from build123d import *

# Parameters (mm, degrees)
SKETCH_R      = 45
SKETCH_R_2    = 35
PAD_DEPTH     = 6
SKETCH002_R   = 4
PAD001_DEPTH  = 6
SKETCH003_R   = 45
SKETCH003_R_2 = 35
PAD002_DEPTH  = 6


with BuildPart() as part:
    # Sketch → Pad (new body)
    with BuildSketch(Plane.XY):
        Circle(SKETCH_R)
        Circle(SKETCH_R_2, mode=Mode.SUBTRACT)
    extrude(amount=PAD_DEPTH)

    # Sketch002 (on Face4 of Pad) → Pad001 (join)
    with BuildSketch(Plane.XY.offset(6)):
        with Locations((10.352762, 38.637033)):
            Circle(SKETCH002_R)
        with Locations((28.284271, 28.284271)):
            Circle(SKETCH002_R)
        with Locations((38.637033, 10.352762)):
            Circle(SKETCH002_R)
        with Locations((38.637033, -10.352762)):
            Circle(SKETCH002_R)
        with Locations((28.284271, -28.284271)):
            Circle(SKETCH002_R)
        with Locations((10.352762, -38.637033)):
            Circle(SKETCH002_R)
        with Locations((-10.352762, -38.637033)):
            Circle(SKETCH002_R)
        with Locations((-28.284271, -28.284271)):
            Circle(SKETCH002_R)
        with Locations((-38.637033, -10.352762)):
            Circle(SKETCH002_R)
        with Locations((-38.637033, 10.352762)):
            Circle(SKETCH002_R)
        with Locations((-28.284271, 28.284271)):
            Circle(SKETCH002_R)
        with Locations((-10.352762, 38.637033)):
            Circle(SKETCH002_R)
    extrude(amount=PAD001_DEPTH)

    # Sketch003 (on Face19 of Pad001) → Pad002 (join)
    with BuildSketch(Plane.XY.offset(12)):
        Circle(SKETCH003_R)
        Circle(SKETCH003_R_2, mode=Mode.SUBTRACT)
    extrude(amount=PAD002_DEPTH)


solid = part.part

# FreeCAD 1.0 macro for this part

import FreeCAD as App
import Part
import Sketcher
Q = App.Units.Quantity

doc = App.newDocument("Part")
params = doc.addObject("Spreadsheet::Sheet", "Params")
for row, (alias, value) in enumerate([
    ("sketch1_diameter", "90 mm"),
    ("sketch1_diameter2", "70 mm"),
    ("pad1_length", "6 mm"),
    ("sketch2_diameter", "8 mm"),
    ("pad2_length", "6 mm"),
    ("sketch3_diameter", "90 mm"),
    ("sketch3_diameter2", "70 mm"),
    ("pad3_length", "6 mm"),
], start=1):
    params.set(f"A{row}", alias)
    params.set(f"B{row}", "=" + value)
    params.setAlias(f"B{row}", alias)

body = doc.addObject("PartDesign::Body", "Body")

# Sketch on XY plane
sketch1 = body.newObject("Sketcher::SketchObject", "Sketch")
sketch1.AttachmentSupport = (doc.getObject("XY_Plane"), [""])
sketch1.MapMode = "FlatFace"
sketch1.addGeometry(Part.Circle(App.Vector(0, 0, 0), App.Vector(0, 0, 1), 45), False)
sketch1.addGeometry(Part.Circle(App.Vector(0, 0, 0), App.Vector(0, 0, 1), 35), False)
sketch1.addConstraint(Sketcher.Constraint("Coincident", 0, 3, -1, 1))
sketch1.addConstraint(Sketcher.Constraint("Coincident", 1, 3, -1, 1))
sketch1.addConstraint(Sketcher.Constraint("Diameter", 0, Q("90 mm")))
sketch1.addConstraint(Sketcher.Constraint("Diameter", 1, Q("70 mm")))
sketch1.setExpression("Constraints[2]", "Params.sketch1_diameter")
sketch1.setExpression("Constraints[3]", "Params.sketch1_diameter2")
pad1 = body.newObject("PartDesign::Pad", "Pad")
pad1.Profile = sketch1
pad1.setExpression("Length", "Params.pad1_length")

# Sketch on XY plane
sketch2 = body.newObject("Sketcher::SketchObject", "Sketch001")
sketch2.AttachmentSupport = (doc.getObject("XY_Plane"), [""])
sketch2.MapMode = "FlatFace"
sketch2.AttachmentOffset = App.Placement(App.Vector(0, 0, 6), App.Rotation())
sketch2.addGeometry(Part.Circle(App.Vector(10.4, 38.6, 0), App.Vector(0, 0, 1), 4), False)
sketch2.addGeometry(Part.Circle(App.Vector(28.3, 28.3, 0), App.Vector(0, 0, 1), 4), False)
sketch2.addGeometry(Part.Circle(App.Vector(38.6, 10.4, 0), App.Vector(0, 0, 1), 4), False)
sketch2.addGeometry(Part.Circle(App.Vector(38.6, -10.4, 0), App.Vector(0, 0, 1), 4), False)
sketch2.addGeometry(Part.Circle(App.Vector(28.3, -28.3, 0), App.Vector(0, 0, 1), 4), False)
sketch2.addGeometry(Part.Circle(App.Vector(10.4, -38.6, 0), App.Vector(0, 0, 1), 4), False)
sketch2.addGeometry(Part.Circle(App.Vector(-10.4, -38.6, 0), App.Vector(0, 0, 1), 4), False)
sketch2.addGeometry(Part.Circle(App.Vector(-28.3, -28.3, 0), App.Vector(0, 0, 1), 4), False)
sketch2.addGeometry(Part.Circle(App.Vector(-38.6, -10.4, 0), App.Vector(0, 0, 1), 4), False)
sketch2.addGeometry(Part.Circle(App.Vector(-38.6, 10.4, 0), App.Vector(0, 0, 1), 4), False)
sketch2.addGeometry(Part.Circle(App.Vector(-28.3, 28.3, 0), App.Vector(0, 0, 1), 4), False)
sketch2.addGeometry(Part.Circle(App.Vector(-10.4, 38.6, 0), App.Vector(0, 0, 1), 4), False)
sketch2.addConstraint(Sketcher.Constraint("Equal", 0, 1))
sketch2.addConstraint(Sketcher.Constraint("Equal", 1, 2))
sketch2.addConstraint(Sketcher.Constraint("Equal", 2, 3))
sketch2.addConstraint(Sketcher.Constraint("Equal", 3, 4))
sketch2.addConstraint(Sketcher.Constraint("Equal", 4, 5))
sketch2.addConstraint(Sketcher.Constraint("Equal", 5, 6))
sketch2.addConstraint(Sketcher.Constraint("Equal", 6, 7))
sketch2.addConstraint(Sketcher.Constraint("Equal", 7, 8))
sketch2.addConstraint(Sketcher.Constraint("Equal", 8, 9))
sketch2.addConstraint(Sketcher.Constraint("Equal", 9, 10))
sketch2.addConstraint(Sketcher.Constraint("Equal", 10, 11))
sketch2.addConstraint(Sketcher.Constraint("Symmetric", 0, 3, 6, 3, -1, 1))
sketch2.addConstraint(Sketcher.Constraint("Symmetric", 1, 3, 7, 3, -1, 1))
sketch2.addConstraint(Sketcher.Constraint("Symmetric", 2, 3, 8, 3, -1, 1))
sketch2.addConstraint(Sketcher.Constraint("Symmetric", 3, 3, 9, 3, -1, 1))
sketch2.addConstraint(Sketcher.Constraint("Symmetric", 4, 3, 10, 3, -1, 1))
sketch2.addConstraint(Sketcher.Constraint("Symmetric", 5, 3, 11, 3, -1, 1))
sketch2.addConstraint(Sketcher.Constraint("Symmetric", 5, 3, 6, 3, -2))
sketch2.addConstraint(Sketcher.Constraint("Symmetric", 4, 3, 7, 3, -2))
sketch2.addConstraint(Sketcher.Constraint("Symmetric", 3, 3, 8, 3, -2))
sketch2.addConstraint(Sketcher.Constraint("Diameter", 0, Q("8 mm")))
sketch2.addConstraint(Sketcher.Constraint("DistanceX", -1, 1, 1, 3, Q("28.284271 mm")))
sketch2.addConstraint(Sketcher.Constraint("DistanceY", -1, 1, 1, 3, Q("28.284271 mm")))
sketch2.addConstraint(Sketcher.Constraint("DistanceX", 0, 3, 1, 3, Q("17.931509 mm")))
sketch2.addConstraint(Sketcher.Constraint("DistanceY", 2, 3, 1, 3, Q("17.931509 mm")))
sketch2.addConstraint(Sketcher.Constraint("DistanceX", 0, 3, 2, 3, Q("28.284271 mm")))
sketch2.addConstraint(Sketcher.Constraint("DistanceY", 2, 3, 0, 3, Q("28.284271 mm")))
sketch2.setExpression("Constraints[20]", "Params.sketch2_diameter")
pad2 = body.newObject("PartDesign::Pad", "Pad001")
pad2.Profile = sketch2
pad2.setExpression("Length", "Params.pad2_length")

# Sketch on XY plane
sketch3 = body.newObject("Sketcher::SketchObject", "Sketch002")
sketch3.AttachmentSupport = (doc.getObject("XY_Plane"), [""])
sketch3.MapMode = "FlatFace"
sketch3.AttachmentOffset = App.Placement(App.Vector(0, 0, 12), App.Rotation())
sketch3.addGeometry(Part.Circle(App.Vector(0, 0, 0), App.Vector(0, 0, 1), 45), False)
sketch3.addGeometry(Part.Circle(App.Vector(0, 0, 0), App.Vector(0, 0, 1), 35), False)
sketch3.addConstraint(Sketcher.Constraint("Coincident", 0, 3, -1, 1))
sketch3.addConstraint(Sketcher.Constraint("Coincident", 1, 3, -1, 1))
sketch3.addConstraint(Sketcher.Constraint("Diameter", 0, Q("90 mm")))
sketch3.addConstraint(Sketcher.Constraint("Diameter", 1, Q("70 mm")))
sketch3.setExpression("Constraints[2]", "Params.sketch3_diameter")
sketch3.setExpression("Constraints[3]", "Params.sketch3_diameter2")
pad3 = body.newObject("PartDesign::Pad", "Pad002")
pad3.Profile = sketch3
pad3.setExpression("Length", "Params.pad3_length")

doc.recompute()
